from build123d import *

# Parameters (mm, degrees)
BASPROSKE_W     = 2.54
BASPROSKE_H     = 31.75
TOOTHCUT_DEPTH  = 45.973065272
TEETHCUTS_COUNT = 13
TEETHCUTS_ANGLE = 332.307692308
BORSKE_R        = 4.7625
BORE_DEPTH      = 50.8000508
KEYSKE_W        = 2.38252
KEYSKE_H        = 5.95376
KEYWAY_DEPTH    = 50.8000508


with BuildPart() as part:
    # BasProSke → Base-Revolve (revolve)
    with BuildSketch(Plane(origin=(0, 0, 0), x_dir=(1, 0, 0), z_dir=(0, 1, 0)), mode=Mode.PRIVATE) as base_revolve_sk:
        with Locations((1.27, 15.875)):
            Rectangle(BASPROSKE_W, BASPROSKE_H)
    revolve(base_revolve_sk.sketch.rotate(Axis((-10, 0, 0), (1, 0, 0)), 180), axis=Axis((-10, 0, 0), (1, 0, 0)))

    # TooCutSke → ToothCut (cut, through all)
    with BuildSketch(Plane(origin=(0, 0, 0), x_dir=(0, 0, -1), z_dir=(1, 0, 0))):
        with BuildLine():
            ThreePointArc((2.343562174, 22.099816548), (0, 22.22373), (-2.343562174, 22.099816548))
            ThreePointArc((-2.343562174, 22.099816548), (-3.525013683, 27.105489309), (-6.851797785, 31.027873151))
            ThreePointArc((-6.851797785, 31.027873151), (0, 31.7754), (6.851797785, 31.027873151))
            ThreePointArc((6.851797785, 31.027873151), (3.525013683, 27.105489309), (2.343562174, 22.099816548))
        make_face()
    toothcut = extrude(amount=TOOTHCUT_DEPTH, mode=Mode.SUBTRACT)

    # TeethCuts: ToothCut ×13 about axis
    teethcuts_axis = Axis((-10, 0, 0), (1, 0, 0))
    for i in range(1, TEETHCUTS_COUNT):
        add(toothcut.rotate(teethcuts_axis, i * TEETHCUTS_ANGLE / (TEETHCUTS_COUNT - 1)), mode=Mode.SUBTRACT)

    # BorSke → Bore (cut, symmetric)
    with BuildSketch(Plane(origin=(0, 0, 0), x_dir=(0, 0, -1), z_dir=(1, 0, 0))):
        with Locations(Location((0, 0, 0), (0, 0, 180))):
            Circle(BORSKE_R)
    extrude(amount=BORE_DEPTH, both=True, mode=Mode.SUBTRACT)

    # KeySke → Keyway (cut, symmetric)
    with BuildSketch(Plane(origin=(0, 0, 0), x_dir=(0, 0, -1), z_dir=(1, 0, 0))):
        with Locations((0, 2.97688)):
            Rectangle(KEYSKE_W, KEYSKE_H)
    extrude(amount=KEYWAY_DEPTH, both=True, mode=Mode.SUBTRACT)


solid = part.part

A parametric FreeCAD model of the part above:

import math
import FreeCAD as App
import Part
import Sketcher
Q = App.Units.Quantity


def add_polygon(sketch, points):
    """Adds a closed chain of lines whose ends are joined by coincident constraints."""
    first, n = sketch.GeometryCount, len(points)
    for a, b in zip(points, points[1:] + points[:1]):
        sketch.addGeometry(Part.LineSegment(App.Vector(*a, 0), App.Vector(*b, 0)), False)
    for i in range(n):
        sketch.addConstraint(Sketcher.Constraint("Coincident", first + i, 2, first + (i + 1) % n, 1))

doc = App.newDocument("Part")
params = doc.addObject("Spreadsheet::Sheet", "Params")
for row, (alias, value) in enumerate([
    ("sketch1_width", "0.1 in"),
    ("sketch1_height", "1.25 in"),
    ("revolution_angle", "360 deg"),
    ("sketch2_radius", "1.251 in"),
    ("sketch3_diameter", "0.375 in"),
    ("pocket2_length", "101.600102 mm"),
    ("pocket3_length", "101.600102 mm"),
], start=1):
    params.set(f"A{row}", alias)
    params.set(f"B{row}", "=" + value)
    params.setAlias(f"B{row}", alias)

body = doc.addObject("PartDesign::Body", "Body")

# Sketch on XZ plane
sketch1 = body.newObject("Sketcher::SketchObject", "Sketch")
sketch1.AttachmentSupport = (doc.getObject("XZ_Plane"), [""])
sketch1.MapMode = "FlatFace"
add_polygon(sketch1, [(0, -31.8), (0, 0), (2.5, 0), (2.5, -31.8)])  # lines 0-3
sketch1.addConstraint([
    Sketcher.Constraint("Vertical", 0),
    Sketcher.Constraint("Horizontal", 1),
    Sketcher.Constraint("Vertical", 2),
    Sketcher.Constraint("Horizontal", 3),
    Sketcher.Constraint("Coincident", 0, 2, -1, 1),
    Sketcher.Constraint("DistanceX", 1, 1, 1, 2, Q("0.1 in")),
    Sketcher.Constraint("DistanceY", 0, 1, 0, 2, Q("1.25 in")),
])
sketch1.setExpression("Constraints[9]", "Params.sketch1_width")
sketch1.setExpression("Constraints[10]", "Params.sketch1_height")
revolution = body.newObject("PartDesign::Revolution", "Revolution")
revolution.Profile = sketch1
revolution.ReferenceAxis = (sketch1, ["H_Axis"])
revolution.setExpression("Angle", "Params.revolution_angle")

# Sketch on YZ plane
sketch2 = body.newObject("Sketcher::SketchObject", "Sketch001")
sketch2.AttachmentSupport = (doc.getObject("YZ_Plane"), [""])
sketch2.MapMode = "FlatFace"
sketch2.addGeometry([
    Part.ArcOfCircle(Part.Circle(App.Vector(0, 0, 0), App.Vector(0, 0, 1), 22.2), math.radians(-6.05), math.radians(6.05)),
    Part.ArcOfCircle(Part.Circle(App.Vector(22.1, -13.4, 0), App.Vector(0, 0, 1), 11), math.radians(36), math.radians(90)),
    Part.ArcOfCircle(Part.Circle(App.Vector(0, 0, 0), App.Vector(0, 0, 1), 31.8), math.radians(-12), math.radians(12)),
    Part.ArcOfCircle(Part.Circle(App.Vector(22.1, 13.4, 0), App.Vector(0, 0, 1), 11), math.radians(-90), math.radians(-36)),
], False)
sketch2.addConstraint([
    Sketcher.Constraint("Coincident", 0, 1, 1, 2),
    Sketcher.Constraint("Coincident", 1, 1, 2, 1),
    Sketcher.Constraint("Coincident", 2, 2, 3, 2),
    Sketcher.Constraint("Coincident", 3, 1, 0, 2),
    Sketcher.Constraint("Coincident", 0, 3, -1, 1),
    Sketcher.Constraint("Coincident", 2, 3, -1, 1),
    Sketcher.Constraint("Equal", 1, 3),
    Sketcher.Constraint("Symmetric", 1, 3, 3, 3, -1),
    Sketcher.Constraint("Radius", 2, Q("1.251 in")),
    Sketcher.Constraint("Radius", 0, Q("22.22373 mm")),
    Sketcher.Constraint("Radius", 1, Q("11.006667 mm")),
    Sketcher.Constraint("DistanceY", 0, 1, 3, 3, Q("15.693701 mm")),
    Sketcher.Constraint("DistanceX", 0, 1, 1, 3, Q("0.044461 mm")),
])
sketch2.setExpression("Constraints[8]", "Params.sketch2_radius")
pocket1 = body.newObject("PartDesign::Pocket", "Pocket")
pocket1.Profile = sketch2
pocket1.Type = "ThroughAll"
pocket1.Reversed = True
doc.recompute()

polarpattern = body.newObject("PartDesign::PolarPattern", "PolarPattern")
polarpattern.Originals = [pocket1]
polarpattern.Axis = (doc.getObject("X_Axis"), [""])
polarpattern.Angle = 360
polarpattern.Occurrences = 13
body.Tip = polarpattern

# Sketch on YZ plane
sketch3 = body.newObject("Sketcher::SketchObject", "Sketch002")
sketch3.AttachmentSupport = (doc.getObject("YZ_Plane"), [""])
sketch3.MapMode = "FlatFace"
sketch3.addGeometry(Part.Circle(App.Vector(0, 0, 0), App.Vector(0, 0, 1), 4.8), False)
sketch3.addConstraint([
    Sketcher.Constraint("Coincident", 0, 3, -1, 1),
    Sketcher.Constraint("Diameter", 0, Q("0.375 in")),
])
sketch3.setExpression("Constraints[1]", "Params.sketch3_diameter")
pocket2 = body.newObject("PartDesign::Pocket", "Pocket001")
pocket2.Profile = sketch3
pocket2.setExpression("Length", "Params.pocket2_length")
pocket2.Midplane = True

# Sketch on YZ plane
sketch4 = body.newObject("Sketcher::SketchObject", "Sketch003")
sketch4.AttachmentSupport = (doc.getObject("YZ_Plane"), [""])
sketch4.MapMode = "FlatFace"
add_polygon(sketch4, [(6, 1.2), (0, 1.2), (0, -1.2), (6, -1.2)])  # lines 0-3
sketch4.addConstraint([
    Sketcher.Constraint("Horizontal", 0),
    Sketcher.Constraint("Vertical", 1),
    Sketcher.Constraint("Horizontal", 2),
    Sketcher.Constraint("Vertical", 3),
    Sketcher.Constraint("Symmetric", 0, 2, 1, 2, -1, 1),
    Sketcher.Constraint("DistanceX", 0, 2, 0, 1, Q("0.2344 in")),
    Sketcher.Constraint("DistanceY", 1, 2, 1, 1, Q("0.0938 in")),
])
pocket3 = body.newObject("PartDesign::Pocket", "Pocket002")
pocket3.Profile = sketch4
pocket3.setExpression("Length", "Params.pocket3_length")
pocket3.Midplane = True

doc.recompute()
